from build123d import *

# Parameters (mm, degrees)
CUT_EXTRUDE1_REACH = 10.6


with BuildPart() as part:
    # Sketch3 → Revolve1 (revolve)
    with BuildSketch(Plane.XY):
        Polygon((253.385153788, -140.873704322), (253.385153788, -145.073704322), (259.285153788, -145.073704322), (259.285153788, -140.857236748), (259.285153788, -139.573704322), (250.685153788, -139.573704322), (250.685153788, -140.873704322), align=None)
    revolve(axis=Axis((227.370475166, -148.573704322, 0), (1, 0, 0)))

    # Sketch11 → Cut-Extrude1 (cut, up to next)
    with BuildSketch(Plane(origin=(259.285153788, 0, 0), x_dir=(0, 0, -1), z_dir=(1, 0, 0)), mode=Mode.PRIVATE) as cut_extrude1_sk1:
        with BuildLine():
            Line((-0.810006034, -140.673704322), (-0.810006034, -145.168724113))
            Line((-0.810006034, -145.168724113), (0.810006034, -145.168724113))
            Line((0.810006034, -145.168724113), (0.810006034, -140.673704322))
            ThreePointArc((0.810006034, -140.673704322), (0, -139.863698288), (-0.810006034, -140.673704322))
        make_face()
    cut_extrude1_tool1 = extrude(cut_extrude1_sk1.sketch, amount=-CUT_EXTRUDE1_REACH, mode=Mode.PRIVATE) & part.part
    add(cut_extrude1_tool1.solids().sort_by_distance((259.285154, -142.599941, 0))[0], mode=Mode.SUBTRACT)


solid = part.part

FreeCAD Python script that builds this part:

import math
import FreeCAD as App
import Part
import Sketcher

V = App.Vector


def add_polygon(sketch, points):
    """Adds a closed chain of lines whose ends are joined by coincident constraints."""
    first, n = sketch.GeometryCount, len(points)
    for a, b in zip(points, points[1:] + points[:1]):
        sketch.addGeometry(Part.LineSegment(App.Vector(*a, 0), App.Vector(*b, 0)), False)
    for i in range(n):
        sketch.addConstraint(Sketcher.Constraint("Coincident", first + i, 2, first + (i + 1) % n, 1))

doc = App.newDocument("Part")
body = doc.addObject("PartDesign::Body", "Body")

# Sketch on XY plane
sketch1 = body.newObject("Sketcher::SketchObject", "Sketch")
sketch1.AttachmentSupport = (doc.getObject("XY_Plane"), [""])
sketch1.MapMode = "FlatFace"
add_polygon(sketch1, [(253.385154, -140.873704), (253.385154, -145.073704), (259.285154, -145.073704), (259.285154, -139.573704), (250.685154, -139.573704), (250.685154, -140.873704)])  # lines 0-5
sketch1.addGeometry(Part.LineSegment(V(250.685154, -148.573704, 0), V(259.285154, -148.573704, 0)), True)  # axis
sketch1.addConstraint(Sketcher.Constraint("Vertical", 0))
sketch1.addConstraint(Sketcher.Constraint("Horizontal", 1))
sketch1.addConstraint(Sketcher.Constraint("Vertical", 2))
sketch1.addConstraint(Sketcher.Constraint("Horizontal", 3))
sketch1.addConstraint(Sketcher.Constraint("Vertical", 4))
sketch1.addConstraint(Sketcher.Constraint("Horizontal", 5))
sketch1.addConstraint(Sketcher.Constraint("Horizontal", 6))
sketch1.addConstraint(Sketcher.Constraint("Vertical", 4, 2, 6, 1))
sketch1.addConstraint(Sketcher.Constraint("Vertical", 2, 2, 6, 2))
sketch1.addConstraint(Sketcher.Constraint("DistanceX", 1, 1, 1, 2, 5.9))
sketch1.addConstraint(Sketcher.Constraint("DistanceX", 3, 2, 3, 1, 8.6))
sketch1.addConstraint(Sketcher.Constraint("DistanceY", 0, 2, 0, 1, 4.2))
sketch1.addConstraint(Sketcher.Constraint("DistanceY", 2, 1, 2, 2, 5.5))
sketch1.addConstraint(Sketcher.Constraint("DistanceY", 6, 1, 3, 2, 9.0))
sketch1.addConstraint(Sketcher.Constraint("DistanceX", -1, 1, 0, 2, 253.385154))
sketch1.addConstraint(Sketcher.Constraint("DistanceY", 0, 2, -1, 1, 145.073704))
revolution = body.newObject("PartDesign::Revolution", "Revolution")
revolution.Profile = sketch1
revolution.ReferenceAxis = (sketch1, ["Axis0"])
revolution.Angle = 360

# Sketch on YZ plane
sketch2 = body.newObject("Sketcher::SketchObject", "Sketch001")
sketch2.AttachmentSupport = (doc.getObject("YZ_Plane"), [""])
sketch2.MapMode = "FlatFace"
sketch2.AttachmentOffset = App.Placement(V(0, 0, 259.285154), App.Rotation())
sketch2.addGeometry(Part.LineSegment(V(-140.673704, 0.810006, 0), V(-145.168724, 0.810006, 0)), False)
sketch2.addGeometry(Part.LineSegment(V(-145.168724, 0.810006, 0), V(-145.168724, -0.810006, 0)), False)
sketch2.addGeometry(Part.LineSegment(V(-145.168724, -0.810006, 0), V(-140.673704, -0.810006, 0)), False)
sketch2.addGeometry(Part.ArcOfCircle(Part.Circle(V(-140.673704, 0, 0), V(0, 0, 1), 0.810006), math.radians(-90), math.radians(90)), False)
sketch2.addConstraint(Sketcher.Constraint("Coincident", 0, 2, 1, 1))
sketch2.addConstraint(Sketcher.Constraint("Coincident", 1, 2, 2, 1))
sketch2.addConstraint(Sketcher.Constraint("Tangent", 2, 2, 3, 1))
sketch2.addConstraint(Sketcher.Constraint("Tangent", 3, 2, 0, 1))
sketch2.addConstraint(Sketcher.Constraint("Horizontal", 0))
sketch2.addConstraint(Sketcher.Constraint("Vertical", 1))
sketch2.addConstraint(Sketcher.Constraint("Horizontal", 2))
sketch2.addConstraint(Sketcher.Constraint("PointOnObject", 3, 3, -1))
sketch2.addConstraint(Sketcher.Constraint("Radius", 3, 0.810006))
sketch2.addConstraint(Sketcher.Constraint("DistanceX", 0, 2, 0, 1, 4.49502))
sketch2.addConstraint(Sketcher.Constraint("DistanceX", 3, 3, -1, 1, 140.673704))
pocket1 = body.newObject("PartDesign::Pocket", "Pocket")
pocket1.Profile = sketch2
pocket1.Length = 8.6

doc.recompute()
